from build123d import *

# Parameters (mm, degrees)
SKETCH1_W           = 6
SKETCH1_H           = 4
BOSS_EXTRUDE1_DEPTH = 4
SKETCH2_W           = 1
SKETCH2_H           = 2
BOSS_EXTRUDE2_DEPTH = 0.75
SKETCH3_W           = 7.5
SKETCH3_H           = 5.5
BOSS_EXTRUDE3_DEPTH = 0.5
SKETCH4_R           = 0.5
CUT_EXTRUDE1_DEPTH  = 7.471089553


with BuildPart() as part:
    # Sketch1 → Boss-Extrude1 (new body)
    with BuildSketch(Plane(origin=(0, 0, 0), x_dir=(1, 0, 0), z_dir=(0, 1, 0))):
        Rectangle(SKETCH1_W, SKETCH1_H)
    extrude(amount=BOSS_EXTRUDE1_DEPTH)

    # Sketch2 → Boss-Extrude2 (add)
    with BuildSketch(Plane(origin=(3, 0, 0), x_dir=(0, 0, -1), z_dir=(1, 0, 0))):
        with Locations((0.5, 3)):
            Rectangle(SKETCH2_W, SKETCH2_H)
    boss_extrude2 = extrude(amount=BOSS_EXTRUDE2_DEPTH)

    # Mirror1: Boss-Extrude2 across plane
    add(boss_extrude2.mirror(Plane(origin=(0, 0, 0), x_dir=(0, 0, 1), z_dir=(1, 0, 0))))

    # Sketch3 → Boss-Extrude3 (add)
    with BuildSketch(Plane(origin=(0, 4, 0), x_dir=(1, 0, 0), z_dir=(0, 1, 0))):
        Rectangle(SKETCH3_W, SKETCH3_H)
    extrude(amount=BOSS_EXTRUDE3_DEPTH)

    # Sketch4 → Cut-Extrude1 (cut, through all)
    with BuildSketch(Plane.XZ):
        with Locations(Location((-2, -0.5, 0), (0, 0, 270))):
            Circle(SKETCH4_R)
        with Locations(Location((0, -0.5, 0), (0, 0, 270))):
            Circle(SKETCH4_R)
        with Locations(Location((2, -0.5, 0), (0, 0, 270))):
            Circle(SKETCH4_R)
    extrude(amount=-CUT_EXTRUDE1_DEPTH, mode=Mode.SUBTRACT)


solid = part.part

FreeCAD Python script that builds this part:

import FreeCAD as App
import Part
import Sketcher
Q = App.Units.Quantity


def add_polygon(sketch, points):
    """Adds a closed chain of lines whose ends are joined by coincident constraints."""
    first, n = sketch.GeometryCount, len(points)
    for a, b in zip(points, points[1:] + points[:1]):
        sketch.addGeometry(Part.LineSegment(App.Vector(*a, 0), App.Vector(*b, 0)), False)
    for i in range(n):
        sketch.addConstraint(Sketcher.Constraint("Coincident", first + i, 2, first + (i + 1) % n, 1))

doc = App.newDocument("Part")
params = doc.addObject("Spreadsheet::Sheet", "Params")
for row, (alias, value) in enumerate([
    ("sketch1_width", "6 mm"),
    ("sketch1_height", "4 mm"),
    ("pad1_length", "4 mm"),
    ("sketch2_width", "2 mm"),
    ("sketch2_height", "1 mm"),
    ("pad2_length", "0.75 mm"),
    ("sketch3_width", "7.5 mm"),
    ("sketch3_height", "5.5 mm"),
    ("pad3_length", "0.5 mm"),
    ("sketch4_diameter", "1 mm"),
], start=1):
    params.set(f"A{row}", alias)
    params.set(f"B{row}", "=" + value)
    params.setAlias(f"B{row}", alias)

body = doc.addObject("PartDesign::Body", "Body")

sketch1 = doc.addObject("Sketcher::SketchObject", "Sketch")
body.addObject(sketch1)
sketch1.AttachmentSupport = (doc.XZ_Plane, [""])
sketch1.MapMode = "FlatFace"
add_polygon(sketch1, [(-3, -2), (-3, 2), (3, 2), (3, -2)])
sketch1.addConstraint(Sketcher.Constraint("Vertical", 0))
sketch1.addConstraint(Sketcher.Constraint("Horizontal", 1))
sketch1.addConstraint(Sketcher.Constraint("Vertical", 2))
sketch1.addConstraint(Sketcher.Constraint("Horizontal", 3))
sketch1.addConstraint(Sketcher.Constraint("Symmetric", 0, 2, 2, 2, -1, 1))
sketch1.addConstraint(Sketcher.Constraint("DistanceX", 1, 1, 1, 2, Q("6 mm")))
sketch1.addConstraint(Sketcher.Constraint("DistanceY", 0, 1, 0, 2, Q("4 mm")))
sketch1.setExpression("Constraints[9]", "Params.sketch1_width")
sketch1.setExpression("Constraints[10]", "Params.sketch1_height")
pad1 = doc.addObject("PartDesign::Pad", "Pad")
body.addObject(pad1)
pad1.Profile = sketch1
pad1.setExpression("Length", "Params.pad1_length")
pad1.Reversed = True

sketch2 = doc.addObject("Sketcher::SketchObject", "Sketch001")
body.addObject(sketch2)
sketch2.AttachmentSupport = (doc.YZ_Plane, [""])
sketch2.MapMode = "FlatFace"
sketch2.AttachmentOffset = App.Placement(App.Vector(0, 0, 3), App.Rotation())
add_polygon(sketch2, [(4, 0), (2, 0), (2, -1), (4, -1)])
sketch2.addConstraint(Sketcher.Constraint("Horizontal", 0))
sketch2.addConstraint(Sketcher.Constraint("Vertical", 1))
sketch2.addConstraint(Sketcher.Constraint("Horizontal", 2))
sketch2.addConstraint(Sketcher.Constraint("Vertical", 3))
sketch2.addConstraint(Sketcher.Constraint("PointOnObject", 0, 2, -1))
sketch2.addConstraint(Sketcher.Constraint("DistanceX", 0, 2, 0, 1, Q("2 mm")))
sketch2.addConstraint(Sketcher.Constraint("DistanceY", 1, 2, 1, 1, Q("1 mm")))
sketch2.addConstraint(Sketcher.Constraint("DistanceX", -1, 1, 0, 2, Q("2 mm")))
sketch2.setExpression("Constraints[9]", "Params.sketch2_width")
sketch2.setExpression("Constraints[10]", "Params.sketch2_height")
pad2 = doc.addObject("PartDesign::Pad", "Pad001")
body.addObject(pad2)
pad2.Profile = sketch2
pad2.setExpression("Length", "Params.pad2_length")
doc.recompute()

mirrored = doc.addObject("PartDesign::Mirrored", "Mirrored")
body.addObject(mirrored)
mirrored.Originals = [pad2]
mirrored.MirrorPlane = (doc.YZ_Plane, [""])
body.Tip = mirrored

sketch3 = doc.addObject("Sketcher::SketchObject", "Sketch002")
body.addObject(sketch3)
sketch3.AttachmentSupport = (doc.XZ_Plane, [""])
sketch3.MapMode = "FlatFace"
sketch3.AttachmentOffset = App.Placement(App.Vector(0, 0, -4), App.Rotation())
add_polygon(sketch3, [(-4, -3), (-4, 3), (4, 3), (4, -3)])
sketch3.addConstraint(Sketcher.Constraint("Vertical", 0))
sketch3.addConstraint(Sketcher.Constraint("Horizontal", 1))
sketch3.addConstraint(Sketcher.Constraint("Vertical", 2))
sketch3.addConstraint(Sketcher.Constraint("Horizontal", 3))
sketch3.addConstraint(Sketcher.Constraint("Symmetric", 0, 2, 2, 2, -1, 1))
sketch3.addConstraint(Sketcher.Constraint("DistanceX", 1, 1, 1, 2, Q("7.5 mm")))
sketch3.addConstraint(Sketcher.Constraint("DistanceY", 0, 1, 0, 2, Q("5.5 mm")))
sketch3.setExpression("Constraints[9]", "Params.sketch3_width")
sketch3.setExpression("Constraints[10]", "Params.sketch3_height")
pad3 = doc.addObject("PartDesign::Pad", "Pad002")
body.addObject(pad3)
pad3.Profile = sketch3
pad3.setExpression("Length", "Params.pad3_length")
pad3.Reversed = True

sketch4 = doc.addObject("Sketcher::SketchObject", "Sketch003")
body.addObject(sketch4)
sketch4.AttachmentSupport = (doc.XZ_Plane, [""])
sketch4.MapMode = "FlatFace"
sketch4.addGeometry(Part.Circle(App.Vector(-2, -0.5, 0), App.Vector(0, 0, 1), 0.5), False)
sketch4.addGeometry(Part.Circle(App.Vector(0, -0.5, 0), App.Vector(0, 0, 1), 0.5), False)
sketch4.addGeometry(Part.Circle(App.Vector(2, -0.5, 0), App.Vector(0, 0, 1), 0.5), False)
sketch4.addConstraint(Sketcher.Constraint("Equal", 0, 1))
sketch4.addConstraint(Sketcher.Constraint("Equal", 1, 2))
sketch4.addConstraint(Sketcher.Constraint("Symmetric", 0, 3, 2, 3, -2))
sketch4.addConstraint(Sketcher.Constraint("PointOnObject", 1, 3, -2))
sketch4.addConstraint(Sketcher.Constraint("Horizontal", 0, 3, 1, 3))
sketch4.addConstraint(Sketcher.Constraint("Diameter", 0, Q("1 mm")))
sketch4.addConstraint(Sketcher.Constraint("DistanceX", 0, 3, -1, 1, Q("2 mm")))
sketch4.addConstraint(Sketcher.Constraint("DistanceY", 0, 3, -1, 1, Q("0.5 mm")))
sketch4.setExpression("Constraints[5]", "Params.sketch4_diameter")
pocket1 = doc.addObject("PartDesign::Pocket", "Pocket")
body.addObject(pocket1)
pocket1.Profile = sketch4
pocket1.Type = "ThroughAll"

doc.recompute()
